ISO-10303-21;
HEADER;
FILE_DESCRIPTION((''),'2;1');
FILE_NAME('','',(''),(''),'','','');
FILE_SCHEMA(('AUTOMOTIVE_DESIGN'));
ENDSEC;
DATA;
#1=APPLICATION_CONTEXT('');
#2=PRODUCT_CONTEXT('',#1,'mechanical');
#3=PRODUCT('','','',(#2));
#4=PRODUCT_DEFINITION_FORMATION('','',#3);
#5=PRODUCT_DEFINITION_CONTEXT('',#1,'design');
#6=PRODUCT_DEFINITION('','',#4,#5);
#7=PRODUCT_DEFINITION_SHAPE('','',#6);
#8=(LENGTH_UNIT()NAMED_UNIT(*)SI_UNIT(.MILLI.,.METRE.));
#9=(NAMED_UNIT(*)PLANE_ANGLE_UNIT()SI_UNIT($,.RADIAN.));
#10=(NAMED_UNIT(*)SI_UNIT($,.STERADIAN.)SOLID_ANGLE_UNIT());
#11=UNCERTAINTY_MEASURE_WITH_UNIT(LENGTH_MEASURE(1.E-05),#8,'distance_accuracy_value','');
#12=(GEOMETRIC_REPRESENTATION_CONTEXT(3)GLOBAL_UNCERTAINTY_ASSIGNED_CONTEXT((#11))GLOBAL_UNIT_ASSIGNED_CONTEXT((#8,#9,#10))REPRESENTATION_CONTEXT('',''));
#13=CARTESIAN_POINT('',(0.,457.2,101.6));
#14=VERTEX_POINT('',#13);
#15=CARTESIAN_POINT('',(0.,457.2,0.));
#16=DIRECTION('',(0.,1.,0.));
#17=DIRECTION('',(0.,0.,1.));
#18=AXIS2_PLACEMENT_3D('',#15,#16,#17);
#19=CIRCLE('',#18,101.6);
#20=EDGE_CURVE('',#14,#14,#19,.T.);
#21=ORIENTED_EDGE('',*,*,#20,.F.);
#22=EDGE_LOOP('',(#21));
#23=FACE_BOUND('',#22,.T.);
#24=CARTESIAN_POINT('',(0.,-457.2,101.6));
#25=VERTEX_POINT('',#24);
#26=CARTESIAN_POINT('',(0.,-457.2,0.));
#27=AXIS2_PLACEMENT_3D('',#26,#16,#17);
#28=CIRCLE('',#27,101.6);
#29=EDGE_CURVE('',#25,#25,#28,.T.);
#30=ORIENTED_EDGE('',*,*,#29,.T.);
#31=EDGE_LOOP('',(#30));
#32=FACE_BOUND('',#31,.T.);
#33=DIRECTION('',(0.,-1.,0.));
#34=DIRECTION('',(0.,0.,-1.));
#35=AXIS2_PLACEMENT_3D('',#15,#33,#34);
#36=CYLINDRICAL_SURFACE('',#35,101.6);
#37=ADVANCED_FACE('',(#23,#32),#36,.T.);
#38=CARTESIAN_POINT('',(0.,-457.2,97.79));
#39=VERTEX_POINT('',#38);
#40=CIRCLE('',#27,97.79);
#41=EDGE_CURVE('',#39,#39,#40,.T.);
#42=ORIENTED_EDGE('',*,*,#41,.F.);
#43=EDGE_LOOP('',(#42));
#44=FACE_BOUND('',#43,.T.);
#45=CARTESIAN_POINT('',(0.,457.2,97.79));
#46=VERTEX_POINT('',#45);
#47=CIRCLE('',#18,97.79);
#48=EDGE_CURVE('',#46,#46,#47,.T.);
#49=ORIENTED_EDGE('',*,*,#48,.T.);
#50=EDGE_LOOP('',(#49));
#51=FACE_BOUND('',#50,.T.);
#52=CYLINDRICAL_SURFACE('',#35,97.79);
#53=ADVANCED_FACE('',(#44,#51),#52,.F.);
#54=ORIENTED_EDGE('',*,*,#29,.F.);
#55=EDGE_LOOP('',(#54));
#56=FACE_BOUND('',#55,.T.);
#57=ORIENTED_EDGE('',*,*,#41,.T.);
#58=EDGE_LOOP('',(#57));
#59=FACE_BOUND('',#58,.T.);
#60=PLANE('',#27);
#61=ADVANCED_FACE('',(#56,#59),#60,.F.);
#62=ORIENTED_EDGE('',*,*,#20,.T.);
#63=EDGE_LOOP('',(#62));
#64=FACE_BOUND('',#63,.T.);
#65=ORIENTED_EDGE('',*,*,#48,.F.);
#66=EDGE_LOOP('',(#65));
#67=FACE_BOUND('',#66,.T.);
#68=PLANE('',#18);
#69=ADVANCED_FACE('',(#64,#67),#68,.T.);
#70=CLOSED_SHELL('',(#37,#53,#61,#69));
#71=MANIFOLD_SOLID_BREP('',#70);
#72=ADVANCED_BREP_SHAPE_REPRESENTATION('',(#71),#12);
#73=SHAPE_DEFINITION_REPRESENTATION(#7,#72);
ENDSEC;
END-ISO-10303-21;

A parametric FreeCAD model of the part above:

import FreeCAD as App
import Part
import Sketcher
from FreeCAD import Vector
Q = App.Units.Quantity

doc = App.newDocument("Part")
body = doc.addObject("PartDesign::Body", "Body")

# Sketch on XZ plane
sketch1 = body.newObject("Sketcher::SketchObject", "Sketch")
sketch1.AttachmentSupport = (doc.getObject("XZ_Plane"), [""])
sketch1.MapMode = "FlatFace"
sketch1.addGeometry([
    Part.Circle(Vector(0, 0, 0), Vector(0, 0, 1), 102),
    Part.Circle(Vector(0, 0, 0), Vector(0, 0, 1), 98),
], False)
sketch1.addConstraint([
    Sketcher.Constraint("Coincident", 0, 3, -1, 1),
    Sketcher.Constraint("Coincident", 1, 3, -1, 1),
    Sketcher.Constraint("Diameter", 0, Q("8 in")),
    Sketcher.Constraint("Diameter", 1, Q("7.7 in")),
])
pad1 = body.newObject("PartDesign::Pad", "Pad")
pad1.Profile = sketch1
pad1.Length = Q("36 in")
pad1.Midplane = True

doc.recompute()
